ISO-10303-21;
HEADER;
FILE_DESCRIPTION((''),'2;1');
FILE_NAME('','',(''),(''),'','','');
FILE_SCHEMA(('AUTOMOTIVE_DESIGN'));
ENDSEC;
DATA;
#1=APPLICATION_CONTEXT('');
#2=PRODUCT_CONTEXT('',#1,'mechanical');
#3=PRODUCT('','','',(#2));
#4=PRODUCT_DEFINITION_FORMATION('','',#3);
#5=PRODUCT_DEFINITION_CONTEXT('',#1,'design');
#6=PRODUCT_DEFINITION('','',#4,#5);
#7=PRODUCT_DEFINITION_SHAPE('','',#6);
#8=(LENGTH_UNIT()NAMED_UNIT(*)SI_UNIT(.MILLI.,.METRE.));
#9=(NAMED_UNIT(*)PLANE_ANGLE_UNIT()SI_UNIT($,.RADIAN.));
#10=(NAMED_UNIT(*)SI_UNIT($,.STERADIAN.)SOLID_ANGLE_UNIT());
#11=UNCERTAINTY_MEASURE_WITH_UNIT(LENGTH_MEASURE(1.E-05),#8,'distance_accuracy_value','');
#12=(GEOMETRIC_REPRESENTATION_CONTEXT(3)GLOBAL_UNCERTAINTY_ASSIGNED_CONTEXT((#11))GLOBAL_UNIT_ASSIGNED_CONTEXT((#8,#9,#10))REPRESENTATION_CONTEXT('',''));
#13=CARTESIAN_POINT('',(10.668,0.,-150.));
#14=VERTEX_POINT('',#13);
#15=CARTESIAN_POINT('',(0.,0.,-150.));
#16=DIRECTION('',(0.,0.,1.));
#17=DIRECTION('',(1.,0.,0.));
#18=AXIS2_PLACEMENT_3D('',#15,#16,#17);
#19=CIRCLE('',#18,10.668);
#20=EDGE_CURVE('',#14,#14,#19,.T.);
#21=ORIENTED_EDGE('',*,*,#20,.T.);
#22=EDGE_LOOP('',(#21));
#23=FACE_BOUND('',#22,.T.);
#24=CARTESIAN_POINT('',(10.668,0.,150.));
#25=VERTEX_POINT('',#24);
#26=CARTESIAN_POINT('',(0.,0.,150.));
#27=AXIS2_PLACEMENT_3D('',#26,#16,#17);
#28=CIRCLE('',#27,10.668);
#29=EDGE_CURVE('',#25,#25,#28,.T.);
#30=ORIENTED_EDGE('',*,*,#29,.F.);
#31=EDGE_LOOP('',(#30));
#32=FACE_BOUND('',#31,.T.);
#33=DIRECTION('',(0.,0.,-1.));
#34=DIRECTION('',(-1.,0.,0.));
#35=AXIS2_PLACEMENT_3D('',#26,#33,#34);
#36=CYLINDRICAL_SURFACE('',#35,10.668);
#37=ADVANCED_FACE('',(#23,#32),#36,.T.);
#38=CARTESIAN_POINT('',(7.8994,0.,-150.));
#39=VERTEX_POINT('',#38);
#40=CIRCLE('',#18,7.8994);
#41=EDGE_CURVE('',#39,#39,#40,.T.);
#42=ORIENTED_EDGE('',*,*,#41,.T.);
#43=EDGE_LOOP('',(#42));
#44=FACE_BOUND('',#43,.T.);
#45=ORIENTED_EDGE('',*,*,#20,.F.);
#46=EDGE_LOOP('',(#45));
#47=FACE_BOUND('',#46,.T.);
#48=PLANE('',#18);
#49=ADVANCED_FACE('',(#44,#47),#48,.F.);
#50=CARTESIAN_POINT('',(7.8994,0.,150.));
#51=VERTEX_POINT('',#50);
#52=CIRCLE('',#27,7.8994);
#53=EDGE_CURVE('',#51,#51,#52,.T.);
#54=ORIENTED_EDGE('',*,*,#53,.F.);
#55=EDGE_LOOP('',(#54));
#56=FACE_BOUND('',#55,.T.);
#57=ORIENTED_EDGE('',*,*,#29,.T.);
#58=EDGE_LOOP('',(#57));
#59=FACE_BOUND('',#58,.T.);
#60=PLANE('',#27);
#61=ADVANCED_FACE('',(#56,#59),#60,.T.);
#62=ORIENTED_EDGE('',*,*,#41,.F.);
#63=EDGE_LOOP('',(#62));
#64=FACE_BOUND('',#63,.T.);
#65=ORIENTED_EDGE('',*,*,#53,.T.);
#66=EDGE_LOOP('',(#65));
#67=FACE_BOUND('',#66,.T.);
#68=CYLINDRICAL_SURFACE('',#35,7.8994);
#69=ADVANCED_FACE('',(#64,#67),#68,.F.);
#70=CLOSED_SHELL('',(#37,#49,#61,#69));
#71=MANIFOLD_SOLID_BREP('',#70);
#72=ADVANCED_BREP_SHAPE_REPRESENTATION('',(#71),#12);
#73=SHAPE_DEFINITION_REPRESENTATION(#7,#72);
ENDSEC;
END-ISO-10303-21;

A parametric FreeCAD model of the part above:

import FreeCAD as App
import Part
import Sketcher

V = App.Vector
Q = App.Units.Quantity

doc = App.newDocument("Part")
body = doc.addObject("PartDesign::Body", "Body")

# Sketch on XY plane
sketch1 = body.newObject("Sketcher::SketchObject", "Sketch")
sketch1.AttachmentSupport = (doc.getObject("XY_Plane"), [""])
sketch1.MapMode = "FlatFace"
sketch1.addGeometry(Part.Circle(V(0, 0, 0), V(0, 0, 1), 11), False)
sketch1.addGeometry(Part.Circle(V(0, 0, 0), V(0, 0, 1), 8), False)
sketch1.addConstraint(Sketcher.Constraint("Coincident", 0, 3, -1, 1))
sketch1.addConstraint(Sketcher.Constraint("Coincident", 1, 3, -1, 1))
sketch1.addConstraint(Sketcher.Constraint("Diameter", 0, Q("0.84 in")))
sketch1.addConstraint(Sketcher.Constraint("Diameter", 1, Q("0.622 in")))
pad1 = body.newObject("PartDesign::Pad", "Pad")
pad1.Profile = sketch1
pad1.Length = 300
pad1.Midplane = True

doc.recompute()
